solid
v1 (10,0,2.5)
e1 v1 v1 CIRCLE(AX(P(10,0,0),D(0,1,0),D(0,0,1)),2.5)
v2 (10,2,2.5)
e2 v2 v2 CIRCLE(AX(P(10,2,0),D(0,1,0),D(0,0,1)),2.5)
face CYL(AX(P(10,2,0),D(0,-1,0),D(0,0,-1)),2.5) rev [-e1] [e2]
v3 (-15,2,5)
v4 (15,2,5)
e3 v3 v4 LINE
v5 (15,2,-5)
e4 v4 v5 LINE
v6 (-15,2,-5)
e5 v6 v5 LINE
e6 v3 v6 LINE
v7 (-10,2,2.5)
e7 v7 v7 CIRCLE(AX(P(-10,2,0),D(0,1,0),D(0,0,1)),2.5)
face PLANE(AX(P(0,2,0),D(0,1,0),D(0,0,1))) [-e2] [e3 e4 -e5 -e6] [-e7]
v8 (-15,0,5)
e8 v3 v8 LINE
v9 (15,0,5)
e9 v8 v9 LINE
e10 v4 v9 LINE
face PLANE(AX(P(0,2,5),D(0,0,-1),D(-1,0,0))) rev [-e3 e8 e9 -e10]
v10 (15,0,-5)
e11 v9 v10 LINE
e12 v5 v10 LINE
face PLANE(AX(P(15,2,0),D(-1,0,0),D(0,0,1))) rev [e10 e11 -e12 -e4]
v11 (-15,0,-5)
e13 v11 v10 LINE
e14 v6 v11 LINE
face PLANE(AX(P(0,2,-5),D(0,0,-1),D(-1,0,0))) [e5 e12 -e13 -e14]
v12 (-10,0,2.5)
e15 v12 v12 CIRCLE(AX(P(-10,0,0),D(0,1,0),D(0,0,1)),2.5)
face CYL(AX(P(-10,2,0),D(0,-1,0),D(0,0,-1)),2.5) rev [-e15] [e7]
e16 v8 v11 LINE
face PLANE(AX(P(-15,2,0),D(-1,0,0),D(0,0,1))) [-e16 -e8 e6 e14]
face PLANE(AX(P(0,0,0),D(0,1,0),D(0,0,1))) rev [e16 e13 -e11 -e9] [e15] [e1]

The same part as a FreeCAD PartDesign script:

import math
import FreeCAD as App
import Part
import Sketcher
from FreeCAD import Vector
Q = App.Units.Quantity

doc = App.newDocument("Part")
body = doc.addObject("PartDesign::Body", "Body")

# Sketch on XZ plane
sketch1 = body.newObject("Sketcher::SketchObject", "Sketch")
sketch1.AttachmentSupport = (doc.getObject("XZ_Plane"), [""])
sketch1.MapMode = "FlatFace"
sketch1.addGeometry(Part.LineSegment(Vector(-15, -5, 0), Vector(-15, 5, 0)), False)
sketch1.addGeometry(Part.LineSegment(Vector(-15, 5, 0), Vector(15, 5, 0)), False)
sketch1.addGeometry(Part.LineSegment(Vector(15, 5, 0), Vector(15, -5, 0)), False)
sketch1.addGeometry(Part.LineSegment(Vector(15, -5, 0), Vector(-15, -5, 0)), False)
sketch1.addGeometry(Part.ArcOfCircle(Part.Circle(Vector(10, 0, 0), Vector(0, 0, 1), 2.5), math.radians(0), math.radians(90)), False)
sketch1.addGeometry(Part.ArcOfCircle(Part.Circle(Vector(10, 0, 0), Vector(0, 0, 1), 2.5), math.radians(90), math.radians(270)), False)
sketch1.addGeometry(Part.ArcOfCircle(Part.Circle(Vector(10, 0, 0), Vector(0, 0, 1), 2.5), math.radians(-90), math.radians(0)), False)
sketch1.addGeometry(Part.ArcOfCircle(Part.Circle(Vector(-10, 0, 0), Vector(0, 0, 1), 2.5), math.radians(90), math.radians(270)), False)
sketch1.addGeometry(Part.ArcOfCircle(Part.Circle(Vector(-10, 0, 0), Vector(0, 0, 1), 2.5), math.radians(-90), math.radians(0)), False)
sketch1.addGeometry(Part.ArcOfCircle(Part.Circle(Vector(-10, 0, 0), Vector(0, 0, 1), 2.5), math.radians(0), math.radians(90)), False)
sketch1.addConstraint(Sketcher.Constraint("Coincident", 0, 2, 1, 1))
sketch1.addConstraint(Sketcher.Constraint("Coincident", 1, 2, 2, 1))
sketch1.addConstraint(Sketcher.Constraint("Coincident", 2, 2, 3, 1))
sketch1.addConstraint(Sketcher.Constraint("Coincident", 3, 2, 0, 1))
sketch1.addConstraint(Sketcher.Constraint("Tangent", 4, 2, 5, 1))
sketch1.addConstraint(Sketcher.Constraint("Tangent", 5, 2, 6, 1))
sketch1.addConstraint(Sketcher.Constraint("Tangent", 6, 2, 4, 1))
sketch1.addConstraint(Sketcher.Constraint("Tangent", 7, 2, 8, 1))
sketch1.addConstraint(Sketcher.Constraint("Tangent", 8, 2, 9, 1))
sketch1.addConstraint(Sketcher.Constraint("Tangent", 9, 2, 7, 1))
sketch1.addConstraint(Sketcher.Constraint("Vertical", 0))
sketch1.addConstraint(Sketcher.Constraint("Horizontal", 1))
sketch1.addConstraint(Sketcher.Constraint("Vertical", 2))
sketch1.addConstraint(Sketcher.Constraint("Horizontal", 3))
sketch1.addConstraint(Sketcher.Constraint("Equal", 6, 7))
sketch1.addConstraint(Sketcher.Constraint("Symmetric", 4, 3, 7, 3, -1, 1))
sketch1.addConstraint(Sketcher.Constraint("Symmetric", 0, 2, 2, 2, -1, 1))
sketch1.addConstraint(Sketcher.Constraint("Symmetric", 5, 2, 7, 2, -2))
sketch1.addConstraint(Sketcher.Constraint("PointOnObject", 6, 2, -1))
sketch1.addConstraint(Sketcher.Constraint("PointOnObject", 8, 2, -1))
sketch1.addConstraint(Sketcher.Constraint("Vertical", 6, 3, 4, 2))
sketch1.addConstraint(Sketcher.Constraint("Vertical", 4, 2, 5, 2))
sketch1.addConstraint(Sketcher.Constraint("Vertical", 7, 2, 9, 2))
sketch1.addConstraint(Sketcher.Constraint("Radius", 4, Q("2.5 mm")))
sketch1.addConstraint(Sketcher.Constraint("DistanceX", 1, 1, 1, 2, Q("30 mm")))
sketch1.addConstraint(Sketcher.Constraint("DistanceY", 0, 1, 0, 2, Q("10 mm")))
sketch1.addConstraint(Sketcher.Constraint("DistanceX", -1, 1, 4, 3, Q("10 mm")))
pad1 = body.newObject("PartDesign::Pad", "Pad")
pad1.Profile = sketch1
pad1.Length = 2
pad1.Reversed = True

doc.recompute()
